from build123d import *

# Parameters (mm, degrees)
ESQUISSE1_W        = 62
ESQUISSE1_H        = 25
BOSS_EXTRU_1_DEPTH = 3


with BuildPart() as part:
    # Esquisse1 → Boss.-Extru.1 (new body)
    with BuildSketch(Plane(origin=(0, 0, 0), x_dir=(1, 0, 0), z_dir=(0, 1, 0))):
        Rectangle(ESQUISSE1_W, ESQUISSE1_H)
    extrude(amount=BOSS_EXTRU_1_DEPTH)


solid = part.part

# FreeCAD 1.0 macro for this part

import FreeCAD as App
import Part
import Sketcher
from FreeCAD import Vector


def add_polygon(sketch, points):
    """Adds a closed chain of lines whose ends are joined by coincident constraints."""
    first, n = sketch.GeometryCount, len(points)
    for a, b in zip(points, points[1:] + points[:1]):
        sketch.addGeometry(Part.LineSegment(App.Vector(*a, 0), App.Vector(*b, 0)), False)
    for i in range(n):
        sketch.addConstraint(Sketcher.Constraint("Coincident", first + i, 2, first + (i + 1) % n, 1))

doc = App.newDocument("Part")
body = doc.addObject("PartDesign::Body", "Body")

sketch1 = body.newObject("Sketcher::SketchObject", "Sketch")
sketch1.AttachmentSupport = (doc.getObject("XZ_Plane"), [""])
sketch1.MapMode = "FlatFace"
add_polygon(sketch1, [(-31, -12), (-31, 12), (31, 12), (31, -12)])
sketch1.addConstraint([
    Sketcher.Constraint("Vertical", 0),
    Sketcher.Constraint("Horizontal", 1),
    Sketcher.Constraint("Vertical", 2),
    Sketcher.Constraint("Horizontal", 3),
    Sketcher.Constraint("Symmetric", 0, 2, 2, 2, -1, 1),
    Sketcher.Constraint("DistanceX", 1, 1, 1, 2, 62.0),
    Sketcher.Constraint("DistanceY", 0, 1, 0, 2, 25.0),
])
pad1 = body.newObject("PartDesign::Pad", "Pad")
pad1.Profile = sketch1
pad1.Length = 3
pad1.Reversed = True

doc.recompute()
